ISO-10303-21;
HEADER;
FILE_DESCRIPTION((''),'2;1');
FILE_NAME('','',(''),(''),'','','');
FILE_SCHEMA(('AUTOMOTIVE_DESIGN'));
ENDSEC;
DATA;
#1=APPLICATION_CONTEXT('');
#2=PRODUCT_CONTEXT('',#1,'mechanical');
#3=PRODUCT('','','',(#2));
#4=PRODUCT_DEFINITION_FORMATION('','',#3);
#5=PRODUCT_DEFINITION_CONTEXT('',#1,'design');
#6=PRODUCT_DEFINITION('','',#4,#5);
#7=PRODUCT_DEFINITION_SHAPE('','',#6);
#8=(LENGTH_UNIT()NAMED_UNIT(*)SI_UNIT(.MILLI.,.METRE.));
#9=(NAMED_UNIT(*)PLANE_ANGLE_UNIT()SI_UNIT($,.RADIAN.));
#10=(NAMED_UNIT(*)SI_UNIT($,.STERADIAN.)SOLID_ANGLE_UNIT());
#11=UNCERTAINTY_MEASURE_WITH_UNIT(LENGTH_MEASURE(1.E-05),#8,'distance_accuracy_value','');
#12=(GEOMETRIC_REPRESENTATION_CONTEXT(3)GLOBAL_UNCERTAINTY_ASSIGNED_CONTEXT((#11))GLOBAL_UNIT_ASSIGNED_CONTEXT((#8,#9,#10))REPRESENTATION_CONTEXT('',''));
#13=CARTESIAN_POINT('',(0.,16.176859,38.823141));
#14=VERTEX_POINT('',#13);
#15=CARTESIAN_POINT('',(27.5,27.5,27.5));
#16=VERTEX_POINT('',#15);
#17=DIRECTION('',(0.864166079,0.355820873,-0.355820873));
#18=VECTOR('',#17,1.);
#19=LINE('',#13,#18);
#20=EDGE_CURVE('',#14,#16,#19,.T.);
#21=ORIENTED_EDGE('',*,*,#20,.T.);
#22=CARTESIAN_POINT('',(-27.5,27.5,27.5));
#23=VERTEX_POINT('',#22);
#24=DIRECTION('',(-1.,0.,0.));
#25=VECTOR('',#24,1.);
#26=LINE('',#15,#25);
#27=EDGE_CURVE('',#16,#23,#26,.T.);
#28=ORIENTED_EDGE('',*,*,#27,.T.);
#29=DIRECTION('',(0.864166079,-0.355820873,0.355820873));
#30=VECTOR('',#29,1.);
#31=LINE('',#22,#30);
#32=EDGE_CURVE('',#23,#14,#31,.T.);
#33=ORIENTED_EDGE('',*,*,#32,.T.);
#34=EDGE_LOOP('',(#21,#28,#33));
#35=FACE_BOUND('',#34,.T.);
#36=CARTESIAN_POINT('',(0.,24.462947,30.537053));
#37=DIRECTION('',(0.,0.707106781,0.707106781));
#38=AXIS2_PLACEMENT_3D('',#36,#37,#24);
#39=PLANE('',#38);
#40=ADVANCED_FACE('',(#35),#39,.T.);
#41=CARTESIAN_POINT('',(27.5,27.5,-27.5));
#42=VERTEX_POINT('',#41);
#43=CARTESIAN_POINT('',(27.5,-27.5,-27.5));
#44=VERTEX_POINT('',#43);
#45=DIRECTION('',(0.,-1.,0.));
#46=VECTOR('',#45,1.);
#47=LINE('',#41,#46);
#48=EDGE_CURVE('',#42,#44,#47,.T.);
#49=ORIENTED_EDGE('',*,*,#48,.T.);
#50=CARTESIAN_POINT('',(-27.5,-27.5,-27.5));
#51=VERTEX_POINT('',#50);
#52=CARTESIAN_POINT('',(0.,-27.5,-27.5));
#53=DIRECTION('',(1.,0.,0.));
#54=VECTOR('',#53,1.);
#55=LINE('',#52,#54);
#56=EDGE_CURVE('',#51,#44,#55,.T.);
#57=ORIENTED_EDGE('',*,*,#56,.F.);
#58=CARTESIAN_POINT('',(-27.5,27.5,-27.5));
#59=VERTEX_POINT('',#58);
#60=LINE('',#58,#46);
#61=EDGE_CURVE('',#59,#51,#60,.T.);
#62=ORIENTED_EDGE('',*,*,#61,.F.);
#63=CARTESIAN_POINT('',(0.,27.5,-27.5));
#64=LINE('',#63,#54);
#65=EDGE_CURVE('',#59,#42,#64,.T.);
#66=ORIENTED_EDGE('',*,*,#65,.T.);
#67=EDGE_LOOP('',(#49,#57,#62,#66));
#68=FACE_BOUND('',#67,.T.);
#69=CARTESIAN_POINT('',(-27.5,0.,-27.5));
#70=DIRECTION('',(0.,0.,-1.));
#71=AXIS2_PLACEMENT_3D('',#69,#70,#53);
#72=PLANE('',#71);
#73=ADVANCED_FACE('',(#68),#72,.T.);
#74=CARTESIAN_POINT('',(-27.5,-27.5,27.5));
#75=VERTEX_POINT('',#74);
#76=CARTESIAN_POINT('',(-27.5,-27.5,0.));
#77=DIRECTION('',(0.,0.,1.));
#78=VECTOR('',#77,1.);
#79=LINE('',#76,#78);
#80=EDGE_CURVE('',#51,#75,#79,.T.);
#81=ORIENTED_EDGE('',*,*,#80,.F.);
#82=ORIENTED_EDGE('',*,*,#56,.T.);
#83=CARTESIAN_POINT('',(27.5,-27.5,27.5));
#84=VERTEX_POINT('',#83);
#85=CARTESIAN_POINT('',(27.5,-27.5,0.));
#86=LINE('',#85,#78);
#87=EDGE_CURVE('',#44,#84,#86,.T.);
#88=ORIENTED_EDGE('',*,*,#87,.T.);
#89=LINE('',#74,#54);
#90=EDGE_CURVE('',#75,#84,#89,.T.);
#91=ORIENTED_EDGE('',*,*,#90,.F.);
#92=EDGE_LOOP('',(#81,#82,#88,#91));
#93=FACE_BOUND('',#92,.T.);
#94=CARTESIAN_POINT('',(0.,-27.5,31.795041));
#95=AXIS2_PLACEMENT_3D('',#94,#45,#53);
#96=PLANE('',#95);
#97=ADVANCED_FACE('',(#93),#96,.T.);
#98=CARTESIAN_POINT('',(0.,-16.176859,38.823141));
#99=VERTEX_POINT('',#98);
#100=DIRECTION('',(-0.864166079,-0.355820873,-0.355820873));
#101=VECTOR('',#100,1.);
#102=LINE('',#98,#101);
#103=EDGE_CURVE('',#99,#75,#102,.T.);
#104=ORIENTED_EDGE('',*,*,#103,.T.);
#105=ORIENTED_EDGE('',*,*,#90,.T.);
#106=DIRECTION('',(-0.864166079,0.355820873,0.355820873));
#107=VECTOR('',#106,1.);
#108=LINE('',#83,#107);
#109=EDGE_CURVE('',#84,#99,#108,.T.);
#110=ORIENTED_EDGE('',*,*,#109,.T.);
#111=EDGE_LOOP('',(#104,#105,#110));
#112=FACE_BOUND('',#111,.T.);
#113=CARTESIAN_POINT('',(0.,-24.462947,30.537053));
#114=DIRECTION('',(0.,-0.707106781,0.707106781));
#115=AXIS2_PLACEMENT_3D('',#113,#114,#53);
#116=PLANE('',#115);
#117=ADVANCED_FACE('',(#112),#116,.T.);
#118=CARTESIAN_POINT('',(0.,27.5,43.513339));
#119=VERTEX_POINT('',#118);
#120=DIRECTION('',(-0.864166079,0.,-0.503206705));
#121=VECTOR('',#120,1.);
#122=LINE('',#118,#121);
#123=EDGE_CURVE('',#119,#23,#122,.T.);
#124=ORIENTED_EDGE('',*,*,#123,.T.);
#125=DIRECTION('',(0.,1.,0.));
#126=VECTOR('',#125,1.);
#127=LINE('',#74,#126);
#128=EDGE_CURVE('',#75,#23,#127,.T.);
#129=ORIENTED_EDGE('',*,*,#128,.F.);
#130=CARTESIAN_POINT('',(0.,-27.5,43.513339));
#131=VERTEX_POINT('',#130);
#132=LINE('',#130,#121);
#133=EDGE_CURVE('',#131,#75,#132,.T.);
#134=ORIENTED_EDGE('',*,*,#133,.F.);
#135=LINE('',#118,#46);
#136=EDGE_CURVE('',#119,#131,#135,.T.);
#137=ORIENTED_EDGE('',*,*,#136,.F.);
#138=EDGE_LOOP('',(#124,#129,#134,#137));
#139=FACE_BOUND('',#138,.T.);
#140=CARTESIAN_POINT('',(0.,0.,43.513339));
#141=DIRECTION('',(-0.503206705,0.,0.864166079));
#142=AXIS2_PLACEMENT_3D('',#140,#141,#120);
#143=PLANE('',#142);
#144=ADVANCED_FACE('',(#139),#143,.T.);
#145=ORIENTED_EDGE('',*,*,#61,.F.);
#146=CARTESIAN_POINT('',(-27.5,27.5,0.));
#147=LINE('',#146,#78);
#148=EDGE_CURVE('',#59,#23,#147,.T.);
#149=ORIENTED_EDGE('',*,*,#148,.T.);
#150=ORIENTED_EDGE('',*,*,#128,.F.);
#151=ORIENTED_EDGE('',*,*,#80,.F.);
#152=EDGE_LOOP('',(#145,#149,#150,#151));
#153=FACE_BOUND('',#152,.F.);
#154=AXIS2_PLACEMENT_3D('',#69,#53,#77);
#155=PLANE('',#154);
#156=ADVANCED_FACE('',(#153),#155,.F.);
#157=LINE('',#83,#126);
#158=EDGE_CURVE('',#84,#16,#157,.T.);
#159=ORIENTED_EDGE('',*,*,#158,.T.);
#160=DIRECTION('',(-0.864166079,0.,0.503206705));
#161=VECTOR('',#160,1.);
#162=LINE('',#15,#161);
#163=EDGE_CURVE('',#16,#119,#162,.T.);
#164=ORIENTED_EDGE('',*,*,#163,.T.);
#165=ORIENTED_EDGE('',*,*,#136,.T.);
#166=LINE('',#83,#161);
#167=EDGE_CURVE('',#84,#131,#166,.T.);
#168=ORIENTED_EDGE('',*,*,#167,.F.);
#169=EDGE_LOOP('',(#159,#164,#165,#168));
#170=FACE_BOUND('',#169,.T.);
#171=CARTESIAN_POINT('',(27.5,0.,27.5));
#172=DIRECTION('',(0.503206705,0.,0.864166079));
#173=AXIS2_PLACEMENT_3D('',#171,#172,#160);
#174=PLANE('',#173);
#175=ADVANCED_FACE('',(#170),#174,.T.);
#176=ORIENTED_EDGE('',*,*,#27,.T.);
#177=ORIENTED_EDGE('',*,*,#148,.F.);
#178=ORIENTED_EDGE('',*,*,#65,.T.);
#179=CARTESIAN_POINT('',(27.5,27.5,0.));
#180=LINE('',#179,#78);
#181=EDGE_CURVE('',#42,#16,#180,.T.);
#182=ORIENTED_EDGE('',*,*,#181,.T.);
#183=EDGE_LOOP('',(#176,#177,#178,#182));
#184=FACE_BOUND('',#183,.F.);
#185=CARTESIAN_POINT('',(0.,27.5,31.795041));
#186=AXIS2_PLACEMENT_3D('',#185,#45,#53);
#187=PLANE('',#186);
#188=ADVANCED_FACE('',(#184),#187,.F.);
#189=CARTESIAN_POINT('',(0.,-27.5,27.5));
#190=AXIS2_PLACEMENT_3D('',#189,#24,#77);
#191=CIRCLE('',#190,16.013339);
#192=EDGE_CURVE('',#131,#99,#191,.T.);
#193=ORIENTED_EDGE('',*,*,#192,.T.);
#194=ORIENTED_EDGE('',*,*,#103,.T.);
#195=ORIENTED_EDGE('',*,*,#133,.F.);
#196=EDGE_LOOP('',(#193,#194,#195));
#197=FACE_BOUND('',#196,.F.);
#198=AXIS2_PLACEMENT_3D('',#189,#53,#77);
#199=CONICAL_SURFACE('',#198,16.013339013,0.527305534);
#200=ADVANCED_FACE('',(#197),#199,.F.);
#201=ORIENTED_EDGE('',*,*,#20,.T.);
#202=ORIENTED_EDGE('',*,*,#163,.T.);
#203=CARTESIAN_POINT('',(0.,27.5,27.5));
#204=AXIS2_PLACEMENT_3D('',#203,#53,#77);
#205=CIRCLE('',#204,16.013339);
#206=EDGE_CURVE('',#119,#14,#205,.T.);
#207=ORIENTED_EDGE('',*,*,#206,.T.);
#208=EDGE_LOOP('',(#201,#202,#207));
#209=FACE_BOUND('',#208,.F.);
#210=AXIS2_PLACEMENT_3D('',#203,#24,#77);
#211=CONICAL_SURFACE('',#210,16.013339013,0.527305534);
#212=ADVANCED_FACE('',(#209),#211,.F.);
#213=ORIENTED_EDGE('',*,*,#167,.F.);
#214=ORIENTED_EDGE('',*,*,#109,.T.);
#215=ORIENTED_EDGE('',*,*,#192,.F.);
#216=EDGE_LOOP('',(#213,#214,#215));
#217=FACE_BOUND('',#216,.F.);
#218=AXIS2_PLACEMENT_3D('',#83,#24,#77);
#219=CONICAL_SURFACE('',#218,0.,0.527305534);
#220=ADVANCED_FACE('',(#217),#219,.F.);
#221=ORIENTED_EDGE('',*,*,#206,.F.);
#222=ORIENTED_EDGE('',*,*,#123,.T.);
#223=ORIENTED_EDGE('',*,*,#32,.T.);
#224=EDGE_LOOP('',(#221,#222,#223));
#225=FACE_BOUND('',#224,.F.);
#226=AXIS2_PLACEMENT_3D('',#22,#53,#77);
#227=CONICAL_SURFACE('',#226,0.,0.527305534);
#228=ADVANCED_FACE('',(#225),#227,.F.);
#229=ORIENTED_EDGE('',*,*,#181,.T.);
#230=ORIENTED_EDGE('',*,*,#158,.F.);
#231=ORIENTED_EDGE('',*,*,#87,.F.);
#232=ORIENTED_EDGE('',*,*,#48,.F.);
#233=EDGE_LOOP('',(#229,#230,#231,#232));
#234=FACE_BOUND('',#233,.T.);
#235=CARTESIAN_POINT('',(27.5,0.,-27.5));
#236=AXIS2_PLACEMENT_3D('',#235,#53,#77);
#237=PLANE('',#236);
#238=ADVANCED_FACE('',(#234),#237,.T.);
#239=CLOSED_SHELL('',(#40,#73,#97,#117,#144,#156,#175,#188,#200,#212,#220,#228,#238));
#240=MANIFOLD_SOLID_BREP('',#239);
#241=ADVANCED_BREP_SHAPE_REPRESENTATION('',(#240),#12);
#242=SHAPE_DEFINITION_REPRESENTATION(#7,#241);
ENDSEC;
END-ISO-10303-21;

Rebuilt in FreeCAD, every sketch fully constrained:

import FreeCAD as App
import Part
import Sketcher
from FreeCAD import Vector

doc = App.newDocument("Part")
params = doc.addObject("Spreadsheet::Sheet", "Params")
for row, (alias, value) in enumerate([
    ("sketch1_width", "55 mm"),
    ("pad1_length", "55 mm"),
    ("sketch2_width", "55 mm"),
    ("pad2_length", "55 mm"),
    ("sketch3_width", "55 mm"),
    ("groove_angle", "45 deg"),
    ("sketch4_width", "55 mm"),
    ("groove2_angle", "45 deg"),
], start=1):
    params.set(f"A{row}", alias)
    params.set(f"B{row}", "=" + value)
    params.setAlias(f"B{row}", alias)

body = doc.addObject("PartDesign::Body", "Body")

sketch1 = doc.addObject("Sketcher::SketchObject", "Sketch")
body.addObject(sketch1)
sketch1.AttachmentSupport = (doc.XZ_Plane, [""])
sketch1.MapMode = "FlatFace"
sketch1.addGeometry(Part.LineSegment(Vector(-28, 28, 0), Vector(-28, -28, 0)), False)
sketch1.addGeometry(Part.LineSegment(Vector(-28, -28, 0), Vector(28, -28, 0)), False)
sketch1.addGeometry(Part.LineSegment(Vector(28, -28, 0), Vector(28, 28, 0)), False)
sketch1.addGeometry(Part.LineSegment(Vector(28, 28, 0), Vector(-28, 28, 0)), False)
sketch1.addConstraint(Sketcher.Constraint("Coincident", 0, 2, 1, 1))
sketch1.addConstraint(Sketcher.Constraint("Coincident", 1, 2, 2, 1))
sketch1.addConstraint(Sketcher.Constraint("Coincident", 2, 2, 3, 1))
sketch1.addConstraint(Sketcher.Constraint("Coincident", 3, 2, 0, 1))
sketch1.addConstraint(Sketcher.Constraint("Vertical", 0))
sketch1.addConstraint(Sketcher.Constraint("Horizontal", 1))
sketch1.addConstraint(Sketcher.Constraint("Vertical", 2))
sketch1.addConstraint(Sketcher.Constraint("Horizontal", 3))
sketch1.addConstraint(Sketcher.Constraint("Symmetric", 0, 2, 2, 2, -1, 1))
sketch1.addConstraint(Sketcher.Constraint("Equal", 3, 0))
sketch1.addConstraint(Sketcher.Constraint("DistanceX", 1, 1, 1, 2, 55.0))
sketch1.setExpression("Constraints[10]", "Params.sketch1_width")
pad1 = doc.addObject("PartDesign::Pad", "Pad")
body.addObject(pad1)
pad1.Profile = sketch1
pad1.setExpression("Length", "Params.pad1_length")
pad1.Midplane = True

sketch2 = doc.addObject("Sketcher::SketchObject", "Sketch001")
body.addObject(sketch2)
sketch2.AttachmentSupport = (doc.XZ_Plane, [""])
sketch2.MapMode = "FlatFace"
sketch2.addGeometry(Part.LineSegment(Vector(28, 28, 0), Vector(0, 44, 0)), False)
sketch2.addGeometry(Part.LineSegment(Vector(0, 44, 0), Vector(-28, 28, 0)), False)
sketch2.addGeometry(Part.LineSegment(Vector(-28, 28, 0), Vector(28, 28, 0)), False)
sketch2.addConstraint(Sketcher.Constraint("Coincident", 0, 2, 1, 1))
sketch2.addConstraint(Sketcher.Constraint("Coincident", 1, 2, 2, 1))
sketch2.addConstraint(Sketcher.Constraint("Coincident", 2, 2, 0, 1))
sketch2.addConstraint(Sketcher.Constraint("Horizontal", 2))
sketch2.addConstraint(Sketcher.Constraint("PointOnObject", 0, 2, -2))
sketch2.addConstraint(Sketcher.Constraint("Equal", 0, 1))
sketch2.addConstraint(Sketcher.Constraint("DistanceX", 2, 1, 2, 2, 55.0))
sketch2.addConstraint(Sketcher.Constraint("DistanceY", -1, 1, 1, 2, 27.5))
sketch2.addConstraint(Sketcher.Constraint("DistanceY", -1, 1, 0, 2, 43.513339))
sketch2.setExpression("Constraints[6]", "Params.sketch2_width")
pad2 = doc.addObject("PartDesign::Pad", "Pad001")
body.addObject(pad2)
pad2.Profile = sketch2
pad2.setExpression("Length", "Params.pad2_length")
pad2.Midplane = True

sketch3 = doc.addObject("Sketcher::SketchObject", "Sketch002")
body.addObject(sketch3)
sketch3.AttachmentSupport = (doc.XZ_Plane, [""])
sketch3.MapMode = "FlatFace"
sketch3.AttachmentOffset = App.Placement(Vector(0, 0, 27.5), App.Rotation())
sketch3.addGeometry(Part.LineSegment(Vector(0, 44, 0), Vector(-28, 28, 0)), False)
sketch3.addGeometry(Part.LineSegment(Vector(-28, 28, 0), Vector(28, 28, 0)), False)
sketch3.addGeometry(Part.LineSegment(Vector(28, 28, 0), Vector(0, 44, 0)), False)
sketch3.addGeometry(Part.LineSegment(Vector(28, 28, 0), Vector(-28, 28, 0)), True)
sketch3.addConstraint(Sketcher.Constraint("Coincident", 0, 2, 1, 1))
sketch3.addConstraint(Sketcher.Constraint("Coincident", 1, 2, 2, 1))
sketch3.addConstraint(Sketcher.Constraint("Coincident", 2, 2, 0, 1))
sketch3.addConstraint(Sketcher.Constraint("Horizontal", 1))
sketch3.addConstraint(Sketcher.Constraint("Horizontal", 3))
sketch3.addConstraint(Sketcher.Constraint("Coincident", 3, 1, 1, 2))
sketch3.addConstraint(Sketcher.Constraint("PointOnObject", 2, 2, -2))
sketch3.addConstraint(Sketcher.Constraint("Equal", 1, 3))
sketch3.addConstraint(Sketcher.Constraint("Equal", 0, 2))
sketch3.addConstraint(Sketcher.Constraint("DistanceX", 1, 1, 1, 2, 55.0))
sketch3.addConstraint(Sketcher.Constraint("DistanceY", -1, 1, 0, 2, 27.5))
sketch3.addConstraint(Sketcher.Constraint("DistanceY", -1, 1, 2, 2, 43.513339))
sketch3.setExpression("Constraints[9]", "Params.sketch3_width")
groove = doc.addObject("PartDesign::Groove", "Groove")
body.addObject(groove)
groove.Profile = sketch3
groove.ReferenceAxis = (sketch3, ["Axis0"])
groove.setExpression("Angle", "Params.groove_angle")

sketch4 = doc.addObject("Sketcher::SketchObject", "Sketch003")
body.addObject(sketch4)
sketch4.AttachmentSupport = (doc.XZ_Plane, [""])
sketch4.MapMode = "FlatFace"
sketch4.AttachmentOffset = App.Placement(Vector(0, 0, -27.5), App.Rotation())
sketch4.addGeometry(Part.LineSegment(Vector(0, 44, 0), Vector(28, 28, 0)), False)
sketch4.addGeometry(Part.LineSegment(Vector(28, 28, 0), Vector(-28, 28, 0)), False)
sketch4.addGeometry(Part.LineSegment(Vector(-28, 28, 0), Vector(0, 44, 0)), False)
sketch4.addGeometry(Part.LineSegment(Vector(-28, 28, 0), Vector(28, 28, 0)), True)
sketch4.addConstraint(Sketcher.Constraint("Coincident", 0, 2, 1, 1))
sketch4.addConstraint(Sketcher.Constraint("Coincident", 1, 2, 2, 1))
sketch4.addConstraint(Sketcher.Constraint("Coincident", 2, 2, 0, 1))
sketch4.addConstraint(Sketcher.Constraint("Horizontal", 1))
sketch4.addConstraint(Sketcher.Constraint("Horizontal", 3))
sketch4.addConstraint(Sketcher.Constraint("Coincident", 3, 1, 1, 2))
sketch4.addConstraint(Sketcher.Constraint("PointOnObject", 2, 2, -2))
sketch4.addConstraint(Sketcher.Constraint("Equal", 1, 3))
sketch4.addConstraint(Sketcher.Constraint("Equal", 0, 2))
sketch4.addConstraint(Sketcher.Constraint("DistanceX", 1, 2, 1, 1, 55.0))
sketch4.addConstraint(Sketcher.Constraint("DistanceY", -1, 1, 0, 2, 27.5))
sketch4.addConstraint(Sketcher.Constraint("DistanceY", -1, 1, 2, 2, 43.513339))
sketch4.setExpression("Constraints[9]", "Params.sketch4_width")
groove2 = doc.addObject("PartDesign::Groove", "Groove001")
body.addObject(groove2)
groove2.Profile = sketch4
groove2.ReferenceAxis = (sketch4, ["Axis0"])
groove2.setExpression("Angle", "Params.groove2_angle")

doc.recompute()
